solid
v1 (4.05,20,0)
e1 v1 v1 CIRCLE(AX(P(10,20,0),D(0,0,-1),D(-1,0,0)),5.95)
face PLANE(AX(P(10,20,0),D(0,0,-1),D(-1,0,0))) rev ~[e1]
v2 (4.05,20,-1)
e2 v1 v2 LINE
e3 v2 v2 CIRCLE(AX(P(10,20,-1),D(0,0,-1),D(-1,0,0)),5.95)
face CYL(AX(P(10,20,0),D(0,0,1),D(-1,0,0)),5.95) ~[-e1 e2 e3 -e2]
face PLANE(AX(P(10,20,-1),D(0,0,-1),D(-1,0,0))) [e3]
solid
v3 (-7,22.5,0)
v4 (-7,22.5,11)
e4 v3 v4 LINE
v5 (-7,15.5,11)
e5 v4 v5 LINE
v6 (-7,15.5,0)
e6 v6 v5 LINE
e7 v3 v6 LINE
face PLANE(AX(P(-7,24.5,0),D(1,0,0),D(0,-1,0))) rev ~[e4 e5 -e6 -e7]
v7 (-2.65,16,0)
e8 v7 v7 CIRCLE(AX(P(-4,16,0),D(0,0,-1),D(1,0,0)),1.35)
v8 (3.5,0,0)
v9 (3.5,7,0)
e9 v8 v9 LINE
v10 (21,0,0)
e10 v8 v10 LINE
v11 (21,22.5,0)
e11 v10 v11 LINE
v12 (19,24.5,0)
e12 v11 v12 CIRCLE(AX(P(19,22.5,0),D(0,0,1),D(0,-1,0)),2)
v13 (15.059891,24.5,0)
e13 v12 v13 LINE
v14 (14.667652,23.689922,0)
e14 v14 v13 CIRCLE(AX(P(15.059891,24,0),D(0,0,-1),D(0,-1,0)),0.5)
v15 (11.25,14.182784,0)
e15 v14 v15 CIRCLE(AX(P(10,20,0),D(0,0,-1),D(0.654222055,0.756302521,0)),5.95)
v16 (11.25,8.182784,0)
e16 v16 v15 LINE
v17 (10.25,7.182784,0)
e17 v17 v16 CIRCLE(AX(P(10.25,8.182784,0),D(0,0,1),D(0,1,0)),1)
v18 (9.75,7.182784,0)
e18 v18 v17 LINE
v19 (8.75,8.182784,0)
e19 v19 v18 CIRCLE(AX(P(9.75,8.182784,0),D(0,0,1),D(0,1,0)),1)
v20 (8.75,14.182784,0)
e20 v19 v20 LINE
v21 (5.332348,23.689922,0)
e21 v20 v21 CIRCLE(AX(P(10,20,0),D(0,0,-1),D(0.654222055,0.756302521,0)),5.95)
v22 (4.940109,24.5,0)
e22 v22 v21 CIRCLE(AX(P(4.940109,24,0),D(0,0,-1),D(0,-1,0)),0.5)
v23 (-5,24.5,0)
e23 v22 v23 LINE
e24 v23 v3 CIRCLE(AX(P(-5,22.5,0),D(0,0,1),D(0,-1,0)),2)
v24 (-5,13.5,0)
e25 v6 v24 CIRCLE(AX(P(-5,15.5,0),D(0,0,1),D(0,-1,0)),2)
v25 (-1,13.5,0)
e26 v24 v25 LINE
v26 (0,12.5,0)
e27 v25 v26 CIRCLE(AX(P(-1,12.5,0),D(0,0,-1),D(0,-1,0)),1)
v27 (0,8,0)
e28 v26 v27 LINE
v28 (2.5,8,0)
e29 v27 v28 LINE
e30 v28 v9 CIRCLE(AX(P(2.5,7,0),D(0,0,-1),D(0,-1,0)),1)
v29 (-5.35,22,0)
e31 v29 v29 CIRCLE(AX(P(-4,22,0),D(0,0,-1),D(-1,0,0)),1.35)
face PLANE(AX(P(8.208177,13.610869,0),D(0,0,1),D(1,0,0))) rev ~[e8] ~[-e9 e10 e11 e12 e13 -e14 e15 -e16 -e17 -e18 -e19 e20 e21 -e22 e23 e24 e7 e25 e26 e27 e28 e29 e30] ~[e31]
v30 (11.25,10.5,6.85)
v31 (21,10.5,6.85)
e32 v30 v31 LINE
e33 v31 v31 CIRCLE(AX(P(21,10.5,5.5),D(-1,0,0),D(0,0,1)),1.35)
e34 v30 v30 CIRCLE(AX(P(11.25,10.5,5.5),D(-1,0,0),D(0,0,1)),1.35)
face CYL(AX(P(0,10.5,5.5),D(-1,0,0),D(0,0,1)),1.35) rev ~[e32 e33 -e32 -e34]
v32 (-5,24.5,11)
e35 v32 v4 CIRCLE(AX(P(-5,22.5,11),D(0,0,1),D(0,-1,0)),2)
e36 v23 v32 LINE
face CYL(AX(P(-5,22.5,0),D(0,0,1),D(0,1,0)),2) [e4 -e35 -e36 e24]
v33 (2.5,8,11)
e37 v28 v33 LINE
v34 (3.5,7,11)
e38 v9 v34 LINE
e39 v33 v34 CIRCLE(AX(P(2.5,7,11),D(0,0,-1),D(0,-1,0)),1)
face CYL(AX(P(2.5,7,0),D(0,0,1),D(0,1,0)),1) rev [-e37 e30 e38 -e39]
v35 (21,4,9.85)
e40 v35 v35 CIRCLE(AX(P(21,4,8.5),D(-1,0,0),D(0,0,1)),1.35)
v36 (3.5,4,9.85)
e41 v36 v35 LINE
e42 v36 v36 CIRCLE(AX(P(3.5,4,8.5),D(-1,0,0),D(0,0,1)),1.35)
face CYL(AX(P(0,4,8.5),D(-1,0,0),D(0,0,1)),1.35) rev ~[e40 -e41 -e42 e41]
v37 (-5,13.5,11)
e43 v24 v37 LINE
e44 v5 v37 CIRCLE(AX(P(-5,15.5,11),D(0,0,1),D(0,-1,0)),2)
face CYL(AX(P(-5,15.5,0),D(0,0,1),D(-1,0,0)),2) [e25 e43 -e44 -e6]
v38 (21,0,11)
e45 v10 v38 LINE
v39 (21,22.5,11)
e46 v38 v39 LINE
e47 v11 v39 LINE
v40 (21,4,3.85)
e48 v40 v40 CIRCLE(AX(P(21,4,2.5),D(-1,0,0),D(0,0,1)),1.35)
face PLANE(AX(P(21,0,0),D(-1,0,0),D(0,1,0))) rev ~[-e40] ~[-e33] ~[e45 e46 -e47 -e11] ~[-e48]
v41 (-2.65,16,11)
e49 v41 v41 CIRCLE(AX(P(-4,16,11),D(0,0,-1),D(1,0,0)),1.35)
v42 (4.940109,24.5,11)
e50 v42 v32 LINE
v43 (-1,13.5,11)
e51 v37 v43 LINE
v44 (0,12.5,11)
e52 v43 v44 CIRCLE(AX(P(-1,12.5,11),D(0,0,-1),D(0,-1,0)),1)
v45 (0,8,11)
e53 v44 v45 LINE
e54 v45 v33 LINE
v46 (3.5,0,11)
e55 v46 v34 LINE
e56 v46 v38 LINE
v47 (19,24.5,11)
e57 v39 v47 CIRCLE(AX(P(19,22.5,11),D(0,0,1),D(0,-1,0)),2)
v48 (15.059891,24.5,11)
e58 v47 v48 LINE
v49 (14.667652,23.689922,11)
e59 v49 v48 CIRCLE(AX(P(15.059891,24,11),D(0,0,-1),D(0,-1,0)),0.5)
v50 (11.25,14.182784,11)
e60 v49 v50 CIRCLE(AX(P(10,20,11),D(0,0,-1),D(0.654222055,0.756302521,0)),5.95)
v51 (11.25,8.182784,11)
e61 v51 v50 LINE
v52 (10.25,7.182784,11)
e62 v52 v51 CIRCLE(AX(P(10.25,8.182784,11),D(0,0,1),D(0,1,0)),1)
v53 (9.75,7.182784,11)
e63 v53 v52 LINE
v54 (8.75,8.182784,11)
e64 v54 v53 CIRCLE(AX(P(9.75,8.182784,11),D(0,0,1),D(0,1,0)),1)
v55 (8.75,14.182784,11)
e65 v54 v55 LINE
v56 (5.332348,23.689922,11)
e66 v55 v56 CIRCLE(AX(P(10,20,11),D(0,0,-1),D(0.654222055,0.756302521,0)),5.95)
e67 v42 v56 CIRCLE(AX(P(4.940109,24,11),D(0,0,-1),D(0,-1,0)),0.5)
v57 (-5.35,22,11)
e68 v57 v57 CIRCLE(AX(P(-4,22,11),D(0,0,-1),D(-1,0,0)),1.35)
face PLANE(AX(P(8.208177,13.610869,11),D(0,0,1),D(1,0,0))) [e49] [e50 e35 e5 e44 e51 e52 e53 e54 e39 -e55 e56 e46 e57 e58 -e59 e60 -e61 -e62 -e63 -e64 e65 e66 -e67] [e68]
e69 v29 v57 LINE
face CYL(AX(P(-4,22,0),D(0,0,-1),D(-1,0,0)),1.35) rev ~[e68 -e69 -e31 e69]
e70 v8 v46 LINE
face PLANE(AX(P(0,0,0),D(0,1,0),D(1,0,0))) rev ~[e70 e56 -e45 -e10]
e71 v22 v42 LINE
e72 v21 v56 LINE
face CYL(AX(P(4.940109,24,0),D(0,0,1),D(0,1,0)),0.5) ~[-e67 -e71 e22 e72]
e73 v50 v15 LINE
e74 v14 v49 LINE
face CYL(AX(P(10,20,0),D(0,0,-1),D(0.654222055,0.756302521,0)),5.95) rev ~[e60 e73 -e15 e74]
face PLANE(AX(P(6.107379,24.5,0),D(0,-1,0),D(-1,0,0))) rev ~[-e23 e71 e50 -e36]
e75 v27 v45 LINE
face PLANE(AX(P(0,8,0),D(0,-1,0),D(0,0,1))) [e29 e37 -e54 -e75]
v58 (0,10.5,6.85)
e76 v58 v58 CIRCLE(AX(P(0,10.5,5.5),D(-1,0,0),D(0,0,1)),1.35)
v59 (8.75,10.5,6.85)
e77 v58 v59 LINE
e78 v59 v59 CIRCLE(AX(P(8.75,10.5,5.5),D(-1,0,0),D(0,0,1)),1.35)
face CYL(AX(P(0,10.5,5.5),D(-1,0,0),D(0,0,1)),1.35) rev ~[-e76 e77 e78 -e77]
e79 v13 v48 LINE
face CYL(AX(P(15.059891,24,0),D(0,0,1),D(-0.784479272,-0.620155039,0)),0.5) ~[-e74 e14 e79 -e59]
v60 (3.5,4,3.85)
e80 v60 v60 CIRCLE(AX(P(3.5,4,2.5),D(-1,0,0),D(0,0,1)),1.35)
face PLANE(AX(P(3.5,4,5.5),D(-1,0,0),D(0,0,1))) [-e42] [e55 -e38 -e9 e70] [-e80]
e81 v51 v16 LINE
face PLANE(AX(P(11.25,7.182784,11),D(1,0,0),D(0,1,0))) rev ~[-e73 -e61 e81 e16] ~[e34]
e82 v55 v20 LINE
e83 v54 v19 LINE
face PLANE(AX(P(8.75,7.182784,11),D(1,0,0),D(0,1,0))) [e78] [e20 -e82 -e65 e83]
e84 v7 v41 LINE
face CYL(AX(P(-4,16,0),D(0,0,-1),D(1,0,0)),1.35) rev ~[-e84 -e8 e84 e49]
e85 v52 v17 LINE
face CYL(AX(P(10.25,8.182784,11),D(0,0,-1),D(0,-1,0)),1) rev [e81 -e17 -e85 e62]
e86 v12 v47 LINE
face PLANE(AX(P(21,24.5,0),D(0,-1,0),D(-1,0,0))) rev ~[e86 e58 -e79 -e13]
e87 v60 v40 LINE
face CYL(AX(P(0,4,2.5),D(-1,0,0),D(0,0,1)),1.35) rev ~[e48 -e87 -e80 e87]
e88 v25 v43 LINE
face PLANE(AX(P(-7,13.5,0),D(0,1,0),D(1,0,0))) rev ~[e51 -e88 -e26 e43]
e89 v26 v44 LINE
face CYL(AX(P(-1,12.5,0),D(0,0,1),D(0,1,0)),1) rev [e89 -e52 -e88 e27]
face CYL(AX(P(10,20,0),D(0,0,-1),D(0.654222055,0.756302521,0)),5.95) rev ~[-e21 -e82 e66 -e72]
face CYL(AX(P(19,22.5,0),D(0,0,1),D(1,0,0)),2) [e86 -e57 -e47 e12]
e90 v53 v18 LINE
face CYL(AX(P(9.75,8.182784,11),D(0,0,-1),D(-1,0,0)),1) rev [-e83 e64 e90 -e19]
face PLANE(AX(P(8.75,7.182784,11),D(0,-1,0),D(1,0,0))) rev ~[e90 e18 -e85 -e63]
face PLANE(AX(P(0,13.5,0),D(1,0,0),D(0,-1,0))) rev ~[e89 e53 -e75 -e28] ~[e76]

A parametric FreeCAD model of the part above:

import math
import FreeCAD as App
import Part
import Sketcher
from FreeCAD import Vector


def edges_at(feature, points):
    """Names of the edges that pass closest to the given points."""
    edges = feature.Shape.Edges
    near = lambda p: min(range(len(edges)), key=lambda i: edges[i].distToShape(Part.Vertex(*p))[0])
    return sorted({f"Edge{near(p) + 1}" for p in points})


def add_polygon(sketch, points):
    """Adds a closed chain of lines whose ends are joined by coincident constraints."""
    first, n = sketch.GeometryCount, len(points)
    for a, b in zip(points, points[1:] + points[:1]):
        sketch.addGeometry(Part.LineSegment(App.Vector(*a, 0), App.Vector(*b, 0)), False)
    for i in range(n):
        sketch.addConstraint(Sketcher.Constraint("Coincident", first + i, 2, first + (i + 1) % n, 1))

doc = App.newDocument("Part")
body = doc.addObject("PartDesign::Body", "Body")

# Sketch on XY plane
sketch1 = body.newObject("Sketcher::SketchObject", "Sketch")
sketch1.AttachmentSupport = (doc.getObject("XY_Plane"), [""])
sketch1.MapMode = "FlatFace"
sketch1.addGeometry(Part.LineSegment(Vector(0, 0, 0), Vector(21, 0, 0)), False)
sketch1.addGeometry(Part.LineSegment(Vector(21, 0, 0), Vector(21, 24, 0)), False)
sketch1.addGeometry(Part.LineSegment(Vector(21, 24, 0), Vector(14, 24, 0)), False)
sketch1.addGeometry(Part.ArcOfCircle(Part.Circle(Vector(10, 20, 0), Vector(0, 0, 1), 6), math.radians(131), math.radians(409)), False)
sketch1.addGeometry(Part.LineSegment(Vector(6, 24, 0), Vector(-7, 24, 0)), False)
sketch1.addGeometry(Part.LineSegment(Vector(-7, 24, 0), Vector(-7, 14, 0)), False)
sketch1.addGeometry(Part.LineSegment(Vector(-7, 14, 0), Vector(0, 14, 0)), False)
sketch1.addGeometry(Part.LineSegment(Vector(0, 14, 0), Vector(0, 0, 0)), False)
sketch1.addConstraint(Sketcher.Constraint("Coincident", 0, 2, 1, 1))
sketch1.addConstraint(Sketcher.Constraint("Coincident", 1, 2, 2, 1))
sketch1.addConstraint(Sketcher.Constraint("Coincident", 2, 2, 3, 2))
sketch1.addConstraint(Sketcher.Constraint("Coincident", 3, 1, 4, 1))
sketch1.addConstraint(Sketcher.Constraint("Coincident", 4, 2, 5, 1))
sketch1.addConstraint(Sketcher.Constraint("Coincident", 5, 2, 6, 1))
sketch1.addConstraint(Sketcher.Constraint("Coincident", 6, 2, 7, 1))
sketch1.addConstraint(Sketcher.Constraint("Coincident", 7, 2, 0, 1))
sketch1.addConstraint(Sketcher.Constraint("Horizontal", 0))
sketch1.addConstraint(Sketcher.Constraint("Vertical", 1))
sketch1.addConstraint(Sketcher.Constraint("Horizontal", 2))
sketch1.addConstraint(Sketcher.Constraint("Horizontal", 4))
sketch1.addConstraint(Sketcher.Constraint("Vertical", 5))
sketch1.addConstraint(Sketcher.Constraint("Horizontal", 6))
sketch1.addConstraint(Sketcher.Constraint("Vertical", 7))
sketch1.addConstraint(Sketcher.Constraint("Coincident", 7, 2, -1, 1))
sketch1.addConstraint(Sketcher.Constraint("Horizontal", 2, 2, 3, 1))
sketch1.addConstraint(Sketcher.Constraint("DistanceX", 0, 1, 0, 2, 21.0))
sketch1.addConstraint(Sketcher.Constraint("DistanceX", 6, 1, 6, 2, 7.0))
sketch1.addConstraint(Sketcher.Constraint("DistanceY", 5, 2, 5, 1, 11.0))
sketch1.addConstraint(Sketcher.Constraint("Radius", 3, 5.95))
sketch1.addConstraint(Sketcher.Constraint("DistanceY", 1, 1, 1, 2, 24.5))
sketch1.addConstraint(Sketcher.Constraint("DistanceX", -1, 1, 3, 3, 10.0))
sketch1.addConstraint(Sketcher.Constraint("DistanceY", -1, 1, 3, 3, 20.0))
pad1 = body.newObject("PartDesign::Pad", "Pad")
pad1.Profile = sketch1
pad1.Length = 11

# Sketch on XY plane
sketch2 = body.newObject("Sketcher::SketchObject", "Sketch001")
sketch2.AttachmentSupport = (doc.getObject("XY_Plane"), [""])
sketch2.MapMode = "FlatFace"
sketch2.AttachmentOffset = App.Placement(Vector(0, 0, 11), App.Rotation())
add_polygon(sketch2, [(8.8, 14.2), (8.8, 7.2), (11.2, 7.2), (11.2, 14.2)])  # lines 0-3
sketch2.addConstraint(Sketcher.Constraint("Vertical", 0))
sketch2.addConstraint(Sketcher.Constraint("Horizontal", 1))
sketch2.addConstraint(Sketcher.Constraint("Vertical", 2))
sketch2.addConstraint(Sketcher.Constraint("Horizontal", 3))
sketch2.addConstraint(Sketcher.Constraint("DistanceY", 0, 2, 0, 1, 7.0))
sketch2.addConstraint(Sketcher.Constraint("DistanceX", 1, 1, 1, 2, 2.5))
sketch2.addConstraint(Sketcher.Constraint("DistanceX", -1, 1, 0, 2, 8.75))
sketch2.addConstraint(Sketcher.Constraint("DistanceY", -1, 1, 0, 2, 7.182784))
pocket1 = body.newObject("PartDesign::Pocket", "Pocket")
pocket1.Profile = sketch2
pocket1.Type = "ThroughAll"

# Sketch on YZ plane
sketch3 = body.newObject("Sketcher::SketchObject", "Sketch002")
sketch3.AttachmentSupport = (doc.getObject("YZ_Plane"), [""])
sketch3.MapMode = "FlatFace"
sketch3.addGeometry(Part.Circle(Vector(10.5, 5.5, 0), Vector(0, 0, 1), 1.4), False)
sketch3.addGeometry(Part.Circle(Vector(4, 8.5, 0), Vector(0, 0, 1), 1.4), False)
sketch3.addGeometry(Part.Circle(Vector(4, 2.5, 0), Vector(0, 0, 1), 1.4), False)
sketch3.addConstraint(Sketcher.Constraint("Equal", 0, 1))
sketch3.addConstraint(Sketcher.Constraint("Equal", 1, 2))
sketch3.addConstraint(Sketcher.Constraint("Vertical", 1, 3, 2, 3))
sketch3.addConstraint(Sketcher.Constraint("Diameter", 0, 2.7))
sketch3.addConstraint(Sketcher.Constraint("DistanceX", -1, 1, 1, 3, 4.0))
sketch3.addConstraint(Sketcher.Constraint("DistanceY", 0, 3, 1, 3, 3.0))
sketch3.addConstraint(Sketcher.Constraint("DistanceY", 2, 3, 1, 3, 6.0))
sketch3.addConstraint(Sketcher.Constraint("DistanceX", -1, 1, 0, 3, 10.5))
sketch3.addConstraint(Sketcher.Constraint("DistanceY", -1, 1, 0, 3, 5.5))
pocket2 = body.newObject("PartDesign::Pocket", "Pocket001")
pocket2.Profile = sketch3
pocket2.Type = "ThroughAll"
pocket2.Reversed = True

# Sketch on XY plane
sketch4 = body.newObject("Sketcher::SketchObject", "Sketch003")
sketch4.AttachmentSupport = (doc.getObject("XY_Plane"), [""])
sketch4.MapMode = "FlatFace"
sketch4.addGeometry(Part.Circle(Vector(-4, 22, 0), Vector(0, 0, 1), 1.4), False)
sketch4.addGeometry(Part.Circle(Vector(-4, 16, 0), Vector(0, 0, 1), 1.4), False)
sketch4.addConstraint(Sketcher.Constraint("Equal", 0, 1))
sketch4.addConstraint(Sketcher.Constraint("Vertical", 0, 3, 1, 3))
sketch4.addConstraint(Sketcher.Constraint("Diameter", 0, 2.7))
sketch4.addConstraint(Sketcher.Constraint("DistanceX", 0, 3, -1, 1, 4.0))
sketch4.addConstraint(Sketcher.Constraint("DistanceY", -1, 1, 0, 3, 22.0))
sketch4.addConstraint(Sketcher.Constraint("DistanceY", -1, 1, 1, 3, 16.0))
pocket3 = body.newObject("PartDesign::Pocket", "Pocket002")
pocket3.Profile = sketch4
pocket3.Type = "ThroughAll"
pocket3.Reversed = True

# Sketch on YZ plane
sketch5 = body.newObject("Sketcher::SketchObject", "Sketch004")
sketch5.AttachmentSupport = (doc.getObject("YZ_Plane"), [""])
sketch5.MapMode = "FlatFace"
add_polygon(sketch5, [(8, 0), (0, 0), (0, 11), (8, 11)])  # lines 0-3
sketch5.addConstraint(Sketcher.Constraint("Horizontal", 0))
sketch5.addConstraint(Sketcher.Constraint("Vertical", 1))
sketch5.addConstraint(Sketcher.Constraint("Horizontal", 2))
sketch5.addConstraint(Sketcher.Constraint("Vertical", 3))
sketch5.addConstraint(Sketcher.Constraint("Coincident", 0, 2, -1, 1))
sketch5.addConstraint(Sketcher.Constraint("DistanceX", 0, 2, 0, 1, 8.0))
sketch5.addConstraint(Sketcher.Constraint("DistanceY", 1, 1, 1, 2, 11.0))
pocket4 = body.newObject("PartDesign::Pocket", "Pocket003")
pocket4.Profile = sketch5
pocket4.Length = 3.5
pocket4.Reversed = True
doc.recompute()

fillet = body.newObject("PartDesign::Fillet", "Fillet")
fillet.Base = (pocket4, edges_at(pocket4, [(6.107, 24.5, 5.5), (13.893, 24.5, 5.5)]))
fillet.Radius = 0.5
doc.recompute()

fillet2 = body.newObject("PartDesign::Fillet", "Fillet001")
fillet2.Base = (fillet, edges_at(fillet, [(-7, 13.5, 5.5), (-7, 24.5, 5.5), (21, 24.5, 5.5)]))
fillet2.Radius = 2
doc.recompute()

fillet3 = body.newObject("PartDesign::Fillet", "Fillet002")
fillet3.Base = (fillet2, edges_at(fillet2, [
    (0, 13.5, 5.5),
    (11.25, 7.183, 5.5),
    (8.75, 7.183, 5.5),
    (3.5, 8, 5.5),
]))
fillet3.Radius = 1
body2 = doc.addObject("PartDesign::Body", "Body001")

# Sketch on XY plane
sketch6 = body2.newObject("Sketcher::SketchObject", "Sketch005")
sketch6.AttachmentSupport = (doc.getObject("XY_Plane001"), [""])
sketch6.MapMode = "FlatFace"
sketch6.addGeometry(Part.Circle(Vector(10, 20, 0), Vector(0, 0, 1), 6), False)
sketch6.addConstraint(Sketcher.Constraint("Diameter", 0, 11.9))
sketch6.addConstraint(Sketcher.Constraint("DistanceX", -1, 1, 0, 3, 10.0))
sketch6.addConstraint(Sketcher.Constraint("DistanceY", -1, 1, 0, 3, 20.0))
pad2 = body2.newObject("PartDesign::Pad", "Pad001")
pad2.Profile = sketch6
pad2.Length = 1
pad2.Reversed = True

doc.recompute()
